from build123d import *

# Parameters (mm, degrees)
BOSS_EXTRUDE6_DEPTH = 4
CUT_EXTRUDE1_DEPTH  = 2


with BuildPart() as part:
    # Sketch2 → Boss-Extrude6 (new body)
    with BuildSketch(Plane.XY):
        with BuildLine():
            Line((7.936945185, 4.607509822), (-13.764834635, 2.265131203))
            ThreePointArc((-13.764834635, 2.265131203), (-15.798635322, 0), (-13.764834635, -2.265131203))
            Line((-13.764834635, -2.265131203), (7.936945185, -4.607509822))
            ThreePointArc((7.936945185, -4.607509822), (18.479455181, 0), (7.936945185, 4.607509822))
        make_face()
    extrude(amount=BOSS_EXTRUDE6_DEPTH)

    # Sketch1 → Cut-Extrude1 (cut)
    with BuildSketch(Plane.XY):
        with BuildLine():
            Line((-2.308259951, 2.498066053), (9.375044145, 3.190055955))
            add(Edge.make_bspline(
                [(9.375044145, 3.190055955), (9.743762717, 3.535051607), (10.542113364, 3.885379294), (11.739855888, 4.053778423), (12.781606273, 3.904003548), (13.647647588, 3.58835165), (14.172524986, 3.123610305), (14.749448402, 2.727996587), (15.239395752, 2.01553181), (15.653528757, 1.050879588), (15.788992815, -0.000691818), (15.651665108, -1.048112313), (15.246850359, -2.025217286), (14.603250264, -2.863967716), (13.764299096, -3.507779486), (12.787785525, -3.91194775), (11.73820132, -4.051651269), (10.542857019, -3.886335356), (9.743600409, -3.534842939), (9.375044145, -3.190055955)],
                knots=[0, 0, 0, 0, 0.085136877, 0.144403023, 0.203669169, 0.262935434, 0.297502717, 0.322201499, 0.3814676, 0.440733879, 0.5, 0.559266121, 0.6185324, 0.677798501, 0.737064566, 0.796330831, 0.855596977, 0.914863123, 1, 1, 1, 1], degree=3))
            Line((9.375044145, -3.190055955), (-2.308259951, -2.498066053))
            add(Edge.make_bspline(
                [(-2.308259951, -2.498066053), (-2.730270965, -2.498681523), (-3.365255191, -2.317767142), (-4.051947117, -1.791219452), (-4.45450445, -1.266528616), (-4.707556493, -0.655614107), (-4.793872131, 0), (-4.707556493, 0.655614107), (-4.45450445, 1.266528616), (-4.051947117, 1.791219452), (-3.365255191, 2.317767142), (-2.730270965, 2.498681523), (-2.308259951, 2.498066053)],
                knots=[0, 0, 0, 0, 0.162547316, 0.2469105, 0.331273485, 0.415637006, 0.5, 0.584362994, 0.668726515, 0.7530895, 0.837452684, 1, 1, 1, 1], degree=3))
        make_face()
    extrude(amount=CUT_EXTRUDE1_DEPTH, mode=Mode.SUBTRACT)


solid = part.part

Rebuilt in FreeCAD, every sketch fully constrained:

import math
import FreeCAD as App
import Part
import Sketcher

V = App.Vector
Q = App.Units.Quantity

doc = App.newDocument("Part")
body = doc.addObject("PartDesign::Body", "Body")

# Sketch on XY plane
sketch1 = body.newObject("Sketcher::SketchObject", "Sketch")
sketch1.AttachmentSupport = (doc.getObject("XY_Plane"), [""])
sketch1.MapMode = "FlatFace"
sketch1.addGeometry(Part.LineSegment(V(7.9, 4.6, 0), V(-13.8, 2.3, 0)), False)
sketch1.addGeometry(Part.ArcOfCircle(Part.Circle(V(-13.5, 0, 0), V(0, 0, 1), 2.3), math.radians(96), math.radians(264)), False)
sketch1.addGeometry(Part.LineSegment(V(-13.8, -2.3, 0), V(7.9, -4.6, 0)), False)
sketch1.addGeometry(Part.ArcOfCircle(Part.Circle(V(12.2, 0, 0), V(0, 0, 1), 6.3), math.radians(-133), math.radians(133)), False)
sketch1.addConstraint(Sketcher.Constraint("Tangent", 0, 2, 1, 1))
sketch1.addConstraint(Sketcher.Constraint("Tangent", 1, 2, 2, 1))
sketch1.addConstraint(Sketcher.Constraint("Coincident", 2, 2, 3, 1))
sketch1.addConstraint(Sketcher.Constraint("Coincident", 3, 2, 0, 1))
sketch1.addConstraint(Sketcher.Constraint("Symmetric", 0, 2, 1, 2, -1))
sketch1.addConstraint(Sketcher.Constraint("PointOnObject", 3, 3, -1))
sketch1.addConstraint(Sketcher.Constraint("Radius", 3, Q("6.278091 mm")))
sketch1.addConstraint(Sketcher.Constraint("Radius", 1, Q("2.278287 mm")))
sketch1.addConstraint(Sketcher.Constraint("DistanceX", 0, 2, 3, 3, Q("25.966199 mm")))
sketch1.addConstraint(Sketcher.Constraint("DistanceX", 1, 3, -1, 1, Q("13.520348 mm")))
sketch1.addConstraint(Sketcher.Constraint("DistanceY", -1, 1, 0, 2, Q("2.265131 mm")))
pad1 = body.newObject("PartDesign::Pad", "Pad")
pad1.Profile = sketch1
pad1.Length = 4

# Sketch on XY plane
sketch2 = body.newObject("Sketcher::SketchObject", "Sketch001")
sketch2.AttachmentSupport = (doc.getObject("XY_Plane"), [""])
sketch2.MapMode = "FlatFace"
sketch2.addGeometry(Part.LineSegment(V(9.375044, 3.190056, 0), V(-2.30826, 2.498066, 0)), False)
sketch2.addGeometry(Part.BSplineCurve([V(-2.30826, -2.498066, 0), V(-2.730271, -2.498682, 0), V(-3.365255, -2.317767, 0), V(-4.051947, -1.791219, 0), V(-4.454504, -1.266529, 0), V(-4.707556, -0.655614, 0), V(-4.793872, 0, 0), V(-4.707556, 0.655614, 0), V(-4.454504, 1.266529, 0), V(-4.051947, 1.791219, 0), V(-3.365255, 2.317767, 0), V(-2.730271, 2.498682, 0), V(-2.30826, 2.498066, 0)], [4, 1, 1, 1, 1, 1, 1, 1, 1, 1, 4], [0, 0.162547316, 0.2469105, 0.331273485, 0.415637006, 0.5, 0.584362994, 0.668726515, 0.7530895, 0.837452684, 1], False, 3, [1, 1, 1, 1, 1, 1, 1, 1, 1, 1, 1, 1, 1], False), False)
sketch2.addGeometry(Part.LineSegment(V(-2.30826, -2.498066, 0), V(9.375044, -3.190056, 0)), False)
sketch2.addGeometry(Part.BSplineCurve([V(9.375044, 3.190056, 0), V(9.743763, 3.535052, 0), V(10.542113, 3.885379, 0), V(11.739856, 4.053778, 0), V(12.781606, 3.904004, 0), V(13.647648, 3.588352, 0), V(14.172525, 3.12361, 0), V(14.749448, 2.727997, 0), V(15.239396, 2.015532, 0), V(15.653529, 1.05088, 0), V(15.788993, -0.000692, 0), V(15.651665, -1.048112, 0), V(15.24685, -2.025217, 0), V(14.60325, -2.863968, 0), V(13.764299, -3.507779, 0), V(12.787786, -3.911948, 0), V(11.738201, -4.051651, 0), V(10.542857, -3.886335, 0), V(9.7436, -3.534843, 0), V(9.375044, -3.190056, 0)], [4, 1, 1, 1, 1, 1, 1, 1, 1, 1, 1, 1, 1, 1, 1, 1, 1, 4], [0, 0.085136877, 0.144403023, 0.203669169, 0.262935434, 0.297502717, 0.322201499, 0.3814676, 0.440733879, 0.5, 0.559266121, 0.6185324, 0.677798501, 0.737064566, 0.796330831, 0.855596977, 0.914863123, 1], False, 3, [1, 1, 1, 1, 1, 1, 1, 1, 1, 1, 1, 1, 1, 1, 1, 1, 1, 1, 1, 1], False), False)
sketch2.addConstraint(Sketcher.Constraint("Block", 1))
sketch2.addConstraint(Sketcher.Constraint("Block", 3))
sketch2.addConstraint(Sketcher.Constraint("Coincident", 0, 2, 1, 2))
sketch2.addConstraint(Sketcher.Constraint("Coincident", 1, 1, 2, 1))
sketch2.addConstraint(Sketcher.Constraint("Coincident", 2, 2, 3, 2))
sketch2.addConstraint(Sketcher.Constraint("Coincident", 3, 1, 0, 1))
pocket1 = body.newObject("PartDesign::Pocket", "Pocket")
pocket1.Profile = sketch2
pocket1.Length = 2
pocket1.Reversed = True

doc.recompute()
